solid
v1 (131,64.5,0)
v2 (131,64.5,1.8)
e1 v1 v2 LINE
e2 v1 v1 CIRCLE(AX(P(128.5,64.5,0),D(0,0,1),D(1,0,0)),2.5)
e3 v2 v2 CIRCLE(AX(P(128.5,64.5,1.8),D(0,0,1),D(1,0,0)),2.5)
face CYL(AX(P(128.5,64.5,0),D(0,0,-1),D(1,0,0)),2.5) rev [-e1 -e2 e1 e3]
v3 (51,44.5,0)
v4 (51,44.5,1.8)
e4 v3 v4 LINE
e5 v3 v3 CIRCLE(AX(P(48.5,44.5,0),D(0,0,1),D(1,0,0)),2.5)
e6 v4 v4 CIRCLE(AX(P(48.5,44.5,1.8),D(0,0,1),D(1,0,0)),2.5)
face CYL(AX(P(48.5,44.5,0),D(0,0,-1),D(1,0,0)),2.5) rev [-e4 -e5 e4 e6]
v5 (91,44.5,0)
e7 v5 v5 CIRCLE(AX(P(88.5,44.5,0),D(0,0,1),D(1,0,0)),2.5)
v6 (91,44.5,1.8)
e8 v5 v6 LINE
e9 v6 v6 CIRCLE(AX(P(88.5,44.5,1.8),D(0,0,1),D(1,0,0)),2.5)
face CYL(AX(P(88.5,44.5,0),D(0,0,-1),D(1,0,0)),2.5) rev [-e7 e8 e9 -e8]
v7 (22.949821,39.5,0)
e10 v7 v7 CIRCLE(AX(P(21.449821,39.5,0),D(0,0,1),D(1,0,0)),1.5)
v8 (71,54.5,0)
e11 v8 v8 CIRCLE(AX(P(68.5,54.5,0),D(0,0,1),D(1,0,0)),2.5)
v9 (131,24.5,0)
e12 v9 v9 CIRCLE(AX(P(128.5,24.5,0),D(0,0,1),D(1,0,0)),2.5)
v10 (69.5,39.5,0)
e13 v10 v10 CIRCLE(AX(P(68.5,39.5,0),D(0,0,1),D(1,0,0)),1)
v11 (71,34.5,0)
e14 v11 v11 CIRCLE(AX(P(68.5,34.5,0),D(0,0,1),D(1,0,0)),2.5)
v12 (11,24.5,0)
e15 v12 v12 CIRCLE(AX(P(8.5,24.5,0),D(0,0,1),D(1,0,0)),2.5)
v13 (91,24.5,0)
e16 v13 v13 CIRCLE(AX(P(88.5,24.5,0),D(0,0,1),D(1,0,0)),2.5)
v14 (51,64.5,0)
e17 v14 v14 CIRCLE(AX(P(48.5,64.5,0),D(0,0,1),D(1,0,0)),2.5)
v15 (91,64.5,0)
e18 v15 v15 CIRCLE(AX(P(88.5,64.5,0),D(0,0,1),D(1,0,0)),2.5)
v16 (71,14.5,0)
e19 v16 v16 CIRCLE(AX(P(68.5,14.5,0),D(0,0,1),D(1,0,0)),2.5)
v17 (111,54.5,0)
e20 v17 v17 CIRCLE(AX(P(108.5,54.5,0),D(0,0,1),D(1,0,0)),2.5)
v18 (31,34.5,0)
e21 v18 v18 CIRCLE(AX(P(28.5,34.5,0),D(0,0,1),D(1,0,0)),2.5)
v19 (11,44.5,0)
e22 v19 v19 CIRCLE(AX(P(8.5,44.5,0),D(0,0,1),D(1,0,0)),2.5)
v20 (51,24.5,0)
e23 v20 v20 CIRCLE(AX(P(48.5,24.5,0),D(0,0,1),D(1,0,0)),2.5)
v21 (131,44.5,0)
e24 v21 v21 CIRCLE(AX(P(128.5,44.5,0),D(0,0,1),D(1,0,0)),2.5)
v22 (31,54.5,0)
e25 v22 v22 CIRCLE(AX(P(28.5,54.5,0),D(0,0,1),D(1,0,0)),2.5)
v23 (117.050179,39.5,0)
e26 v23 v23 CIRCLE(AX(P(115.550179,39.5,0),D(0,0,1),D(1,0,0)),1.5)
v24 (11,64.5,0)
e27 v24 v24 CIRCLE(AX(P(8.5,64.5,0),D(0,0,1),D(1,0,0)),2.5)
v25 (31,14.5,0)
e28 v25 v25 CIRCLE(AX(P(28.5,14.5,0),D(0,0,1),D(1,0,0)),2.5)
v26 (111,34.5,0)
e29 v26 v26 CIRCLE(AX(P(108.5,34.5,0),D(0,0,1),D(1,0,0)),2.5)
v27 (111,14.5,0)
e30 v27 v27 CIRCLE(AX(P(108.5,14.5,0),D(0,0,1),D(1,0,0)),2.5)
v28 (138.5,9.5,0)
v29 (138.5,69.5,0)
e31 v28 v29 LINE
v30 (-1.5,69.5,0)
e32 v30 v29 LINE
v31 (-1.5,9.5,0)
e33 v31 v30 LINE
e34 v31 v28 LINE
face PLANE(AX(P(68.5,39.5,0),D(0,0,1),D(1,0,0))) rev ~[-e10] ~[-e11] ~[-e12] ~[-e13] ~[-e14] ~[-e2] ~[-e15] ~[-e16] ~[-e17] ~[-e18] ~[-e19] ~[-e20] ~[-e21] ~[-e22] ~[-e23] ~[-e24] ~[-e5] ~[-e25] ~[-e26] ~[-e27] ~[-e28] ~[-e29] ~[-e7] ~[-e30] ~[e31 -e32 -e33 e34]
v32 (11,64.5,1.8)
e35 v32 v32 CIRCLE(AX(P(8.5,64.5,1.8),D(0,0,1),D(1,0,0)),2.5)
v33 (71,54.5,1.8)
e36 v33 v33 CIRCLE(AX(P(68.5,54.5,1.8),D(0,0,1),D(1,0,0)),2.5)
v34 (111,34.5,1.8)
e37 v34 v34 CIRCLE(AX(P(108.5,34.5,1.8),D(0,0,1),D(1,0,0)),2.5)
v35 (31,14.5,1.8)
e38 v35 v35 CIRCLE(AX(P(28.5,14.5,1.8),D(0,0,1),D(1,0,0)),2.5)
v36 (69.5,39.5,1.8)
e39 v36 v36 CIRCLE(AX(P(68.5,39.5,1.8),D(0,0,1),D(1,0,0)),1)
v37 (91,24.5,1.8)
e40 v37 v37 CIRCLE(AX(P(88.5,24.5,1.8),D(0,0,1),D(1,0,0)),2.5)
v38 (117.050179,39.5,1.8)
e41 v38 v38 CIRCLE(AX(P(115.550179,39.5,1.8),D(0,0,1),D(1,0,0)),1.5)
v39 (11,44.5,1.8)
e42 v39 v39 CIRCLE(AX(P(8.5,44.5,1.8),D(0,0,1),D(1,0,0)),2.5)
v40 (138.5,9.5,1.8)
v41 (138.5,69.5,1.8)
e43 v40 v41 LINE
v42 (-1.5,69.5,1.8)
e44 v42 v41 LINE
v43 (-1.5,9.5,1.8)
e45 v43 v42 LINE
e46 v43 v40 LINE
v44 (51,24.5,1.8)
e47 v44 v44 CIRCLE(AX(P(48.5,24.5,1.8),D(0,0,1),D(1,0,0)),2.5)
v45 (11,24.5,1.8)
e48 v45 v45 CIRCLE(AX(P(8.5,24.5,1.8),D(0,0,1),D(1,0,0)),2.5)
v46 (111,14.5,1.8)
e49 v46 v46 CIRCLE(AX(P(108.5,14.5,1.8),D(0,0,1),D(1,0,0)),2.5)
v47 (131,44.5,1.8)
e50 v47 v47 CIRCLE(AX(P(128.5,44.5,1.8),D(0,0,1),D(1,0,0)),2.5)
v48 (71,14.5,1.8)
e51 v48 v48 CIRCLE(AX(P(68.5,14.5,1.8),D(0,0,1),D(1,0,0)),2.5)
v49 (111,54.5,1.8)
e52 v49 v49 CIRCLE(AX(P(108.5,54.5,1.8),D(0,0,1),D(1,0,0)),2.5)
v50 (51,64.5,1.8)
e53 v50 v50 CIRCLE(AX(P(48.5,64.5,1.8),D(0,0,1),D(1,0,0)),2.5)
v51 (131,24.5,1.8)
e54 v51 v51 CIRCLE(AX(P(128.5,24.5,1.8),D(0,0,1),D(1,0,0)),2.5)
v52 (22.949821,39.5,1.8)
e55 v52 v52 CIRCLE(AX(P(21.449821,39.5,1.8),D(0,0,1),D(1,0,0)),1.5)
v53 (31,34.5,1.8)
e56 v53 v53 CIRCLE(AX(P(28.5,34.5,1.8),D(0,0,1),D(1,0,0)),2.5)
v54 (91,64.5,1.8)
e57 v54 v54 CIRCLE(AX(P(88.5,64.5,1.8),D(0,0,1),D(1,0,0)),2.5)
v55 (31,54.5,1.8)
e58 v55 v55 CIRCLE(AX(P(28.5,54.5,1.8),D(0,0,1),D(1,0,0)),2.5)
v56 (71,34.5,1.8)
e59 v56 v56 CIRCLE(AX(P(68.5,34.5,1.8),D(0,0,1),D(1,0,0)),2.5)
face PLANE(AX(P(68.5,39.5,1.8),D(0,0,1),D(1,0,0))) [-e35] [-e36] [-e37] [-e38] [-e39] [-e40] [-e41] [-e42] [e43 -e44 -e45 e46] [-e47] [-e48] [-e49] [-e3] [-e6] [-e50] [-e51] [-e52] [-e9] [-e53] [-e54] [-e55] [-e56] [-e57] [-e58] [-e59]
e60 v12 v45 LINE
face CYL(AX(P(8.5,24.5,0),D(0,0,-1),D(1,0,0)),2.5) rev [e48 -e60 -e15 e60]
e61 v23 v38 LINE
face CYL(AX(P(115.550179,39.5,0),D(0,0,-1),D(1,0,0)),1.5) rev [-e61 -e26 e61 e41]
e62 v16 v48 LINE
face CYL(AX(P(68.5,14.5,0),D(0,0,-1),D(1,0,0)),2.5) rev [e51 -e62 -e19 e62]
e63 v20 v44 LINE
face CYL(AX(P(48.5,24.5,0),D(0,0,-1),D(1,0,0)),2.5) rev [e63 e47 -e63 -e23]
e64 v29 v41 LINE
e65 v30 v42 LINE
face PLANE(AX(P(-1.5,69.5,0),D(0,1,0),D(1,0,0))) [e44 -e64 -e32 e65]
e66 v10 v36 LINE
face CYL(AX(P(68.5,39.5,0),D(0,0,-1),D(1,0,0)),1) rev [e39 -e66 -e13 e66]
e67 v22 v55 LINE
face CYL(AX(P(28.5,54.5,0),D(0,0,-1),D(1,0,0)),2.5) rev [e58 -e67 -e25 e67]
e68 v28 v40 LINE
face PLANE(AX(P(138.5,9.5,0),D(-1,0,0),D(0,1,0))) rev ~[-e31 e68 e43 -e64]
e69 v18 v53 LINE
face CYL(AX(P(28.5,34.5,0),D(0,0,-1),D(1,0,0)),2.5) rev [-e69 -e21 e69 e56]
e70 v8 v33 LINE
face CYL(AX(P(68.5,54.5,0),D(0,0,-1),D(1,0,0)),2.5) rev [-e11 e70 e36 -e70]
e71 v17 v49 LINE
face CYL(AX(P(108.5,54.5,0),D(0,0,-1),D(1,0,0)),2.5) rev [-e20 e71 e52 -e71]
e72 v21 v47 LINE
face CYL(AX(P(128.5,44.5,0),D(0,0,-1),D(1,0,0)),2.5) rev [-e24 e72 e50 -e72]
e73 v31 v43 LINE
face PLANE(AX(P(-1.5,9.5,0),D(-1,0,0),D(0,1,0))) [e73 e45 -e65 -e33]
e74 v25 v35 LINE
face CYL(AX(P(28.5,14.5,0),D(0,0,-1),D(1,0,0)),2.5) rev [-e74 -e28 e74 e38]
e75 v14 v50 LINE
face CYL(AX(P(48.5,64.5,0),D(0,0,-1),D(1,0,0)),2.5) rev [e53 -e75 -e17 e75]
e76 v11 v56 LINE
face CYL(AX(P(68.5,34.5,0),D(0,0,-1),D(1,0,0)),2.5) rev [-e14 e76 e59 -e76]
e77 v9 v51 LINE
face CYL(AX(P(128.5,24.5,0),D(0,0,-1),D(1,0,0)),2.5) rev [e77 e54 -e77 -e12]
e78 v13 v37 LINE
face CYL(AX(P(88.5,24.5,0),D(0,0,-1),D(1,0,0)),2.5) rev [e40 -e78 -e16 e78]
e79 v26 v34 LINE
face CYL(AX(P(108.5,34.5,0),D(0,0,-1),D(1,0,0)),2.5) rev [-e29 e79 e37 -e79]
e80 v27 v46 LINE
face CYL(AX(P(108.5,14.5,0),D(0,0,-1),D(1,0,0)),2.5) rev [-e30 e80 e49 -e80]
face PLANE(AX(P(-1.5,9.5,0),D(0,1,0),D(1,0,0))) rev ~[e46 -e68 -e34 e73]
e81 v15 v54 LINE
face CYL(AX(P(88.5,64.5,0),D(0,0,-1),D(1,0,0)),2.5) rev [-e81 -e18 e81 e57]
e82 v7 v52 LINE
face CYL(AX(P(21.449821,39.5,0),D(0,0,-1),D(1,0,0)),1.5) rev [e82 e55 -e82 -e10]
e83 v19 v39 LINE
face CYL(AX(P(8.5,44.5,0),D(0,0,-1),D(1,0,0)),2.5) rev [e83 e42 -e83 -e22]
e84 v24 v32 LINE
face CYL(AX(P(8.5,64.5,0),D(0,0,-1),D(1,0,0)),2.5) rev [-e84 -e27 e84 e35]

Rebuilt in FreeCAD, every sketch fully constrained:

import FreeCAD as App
import Part
import Sketcher
from FreeCAD import Vector


def add_polygon(sketch, points):
    """Adds a closed chain of lines whose ends are joined by coincident constraints."""
    first, n = sketch.GeometryCount, len(points)
    for a, b in zip(points, points[1:] + points[:1]):
        sketch.addGeometry(Part.LineSegment(App.Vector(*a, 0), App.Vector(*b, 0)), False)
    for i in range(n):
        sketch.addConstraint(Sketcher.Constraint("Coincident", first + i, 2, first + (i + 1) % n, 1))

doc = App.newDocument("Part")
body = doc.addObject("PartDesign::Body", "Body")

# Sketch on XY plane
sketch1 = body.newObject("Sketcher::SketchObject", "Sketch")
sketch1.AttachmentSupport = (doc.getObject("XY_Plane"), [""])
sketch1.MapMode = "FlatFace"
add_polygon(sketch1, [(-1.5, 69.5), (-1.5, 9.5), (138.5, 9.5), (138.5, 69.5)])  # lines 0-3
sketch1.addGeometry(Part.Circle(Vector(28.5, 14.5, 0), Vector(0, 0, 1), 2.5), False)  # 4
sketch1.addGeometry(Part.Circle(Vector(8.5, 24.5, 0), Vector(0, 0, 1), 2.5), False)  # 5
sketch1.addGeometry(Part.Circle(Vector(48.5, 24.5, 0), Vector(0, 0, 1), 2.5), False)  # 6
sketch1.addGeometry(Part.Circle(Vector(28.5, 34.5, 0), Vector(0, 0, 1), 2.5), False)  # 7
sketch1.addGeometry(Part.Circle(Vector(68.5, 14.5, 0), Vector(0, 0, 1), 2.5), False)  # 8
sketch1.addGeometry(Part.Circle(Vector(88.5, 24.5, 0), Vector(0, 0, 1), 2.5), False)  # 9
sketch1.addGeometry(Part.Circle(Vector(108.5, 14.5, 0), Vector(0, 0, 1), 2.5), False)  # 10
sketch1.addGeometry(Part.Circle(Vector(128.5, 24.5, 0), Vector(0, 0, 1), 2.5), False)  # 11
sketch1.addGeometry(Part.Circle(Vector(68.5, 34.5, 0), Vector(0, 0, 1), 2.5), False)  # 12
sketch1.addGeometry(Part.Circle(Vector(108.5, 34.5, 0), Vector(0, 0, 1), 2.5), False)  # 13
sketch1.addGeometry(Part.Circle(Vector(21.449821, 39.5, 0), Vector(0, 0, 1), 1.5), False)  # 14
sketch1.addGeometry(Part.Circle(Vector(8.5, 44.5, 0), Vector(0, 0, 1), 2.5), False)  # 15
sketch1.addGeometry(Part.Circle(Vector(48.5, 44.5, 0), Vector(0, 0, 1), 2.5), False)  # 16
sketch1.addGeometry(Part.Circle(Vector(28.5, 54.5, 0), Vector(0, 0, 1), 2.5), False)  # 17
sketch1.addGeometry(Part.Circle(Vector(8.5, 64.5, 0), Vector(0, 0, 1), 2.5), False)  # 18
sketch1.addGeometry(Part.Circle(Vector(48.5, 64.5, 0), Vector(0, 0, 1), 2.5), False)  # 19
sketch1.addGeometry(Part.Circle(Vector(68.5, 39.5, 0), Vector(0, 0, 1), 1), False)  # 20
sketch1.addGeometry(Part.Circle(Vector(88.5, 44.5, 0), Vector(0, 0, 1), 2.5), False)  # 21
sketch1.addGeometry(Part.Circle(Vector(115.550179, 39.5, 0), Vector(0, 0, 1), 1.5), False)  # 22
sketch1.addGeometry(Part.Circle(Vector(128.5, 44.5, 0), Vector(0, 0, 1), 2.5), False)  # 23
sketch1.addGeometry(Part.Circle(Vector(68.5, 54.5, 0), Vector(0, 0, 1), 2.5), False)  # 24
sketch1.addGeometry(Part.Circle(Vector(88.5, 64.5, 0), Vector(0, 0, 1), 2.5), False)  # 25
sketch1.addGeometry(Part.Circle(Vector(108.5, 54.5, 0), Vector(0, 0, 1), 2.5), False)  # 26
sketch1.addGeometry(Part.Circle(Vector(128.5, 64.5, 0), Vector(0, 0, 1), 2.5), False)  # 27
sketch1.addConstraint(Sketcher.Constraint("Vertical", 0))
sketch1.addConstraint(Sketcher.Constraint("Horizontal", 1))
sketch1.addConstraint(Sketcher.Constraint("Vertical", 2))
sketch1.addConstraint(Sketcher.Constraint("Horizontal", 3))
sketch1.addConstraint(Sketcher.Constraint("Equal", 4, 5))
sketch1.addConstraint(Sketcher.Constraint("Equal", 5, 6))
sketch1.addConstraint(Sketcher.Constraint("Equal", 6, 7))
sketch1.addConstraint(Sketcher.Constraint("Equal", 7, 8))
sketch1.addConstraint(Sketcher.Constraint("Equal", 8, 9))
sketch1.addConstraint(Sketcher.Constraint("Equal", 9, 10))
sketch1.addConstraint(Sketcher.Constraint("Equal", 10, 11))
sketch1.addConstraint(Sketcher.Constraint("Equal", 11, 12))
sketch1.addConstraint(Sketcher.Constraint("Equal", 12, 13))
sketch1.addConstraint(Sketcher.Constraint("Equal", 13, 15))
sketch1.addConstraint(Sketcher.Constraint("Equal", 15, 16))
sketch1.addConstraint(Sketcher.Constraint("Equal", 16, 17))
sketch1.addConstraint(Sketcher.Constraint("Equal", 17, 18))
sketch1.addConstraint(Sketcher.Constraint("Equal", 18, 19))
sketch1.addConstraint(Sketcher.Constraint("Equal", 19, 21))
sketch1.addConstraint(Sketcher.Constraint("Equal", 14, 22))
sketch1.addConstraint(Sketcher.Constraint("Equal", 21, 23))
sketch1.addConstraint(Sketcher.Constraint("Equal", 23, 24))
sketch1.addConstraint(Sketcher.Constraint("Equal", 24, 25))
sketch1.addConstraint(Sketcher.Constraint("Equal", 25, 26))
sketch1.addConstraint(Sketcher.Constraint("Equal", 26, 27))
sketch1.addConstraint(Sketcher.Constraint("Horizontal", 5, 3, 6, 3))
sketch1.addConstraint(Sketcher.Constraint("Horizontal", 4, 3, 8, 3))
sketch1.addConstraint(Sketcher.Constraint("Horizontal", 6, 3, 9, 3))
sketch1.addConstraint(Sketcher.Constraint("Horizontal", 8, 3, 10, 3))
sketch1.addConstraint(Sketcher.Constraint("Horizontal", 9, 3, 11, 3))
sketch1.addConstraint(Sketcher.Constraint("Horizontal", 7, 3, 12, 3))
sketch1.addConstraint(Sketcher.Constraint("Horizontal", 12, 3, 13, 3))
sketch1.addConstraint(Sketcher.Constraint("Horizontal", 15, 3, 16, 3))
sketch1.addConstraint(Sketcher.Constraint("Horizontal", 18, 3, 19, 3))
sketch1.addConstraint(Sketcher.Constraint("Horizontal", 14, 3, 20, 3))
sketch1.addConstraint(Sketcher.Constraint("Horizontal", 16, 3, 21, 3))
sketch1.addConstraint(Sketcher.Constraint("Horizontal", 20, 3, 22, 3))
sketch1.addConstraint(Sketcher.Constraint("Horizontal", 21, 3, 23, 3))
sketch1.addConstraint(Sketcher.Constraint("Horizontal", 17, 3, 24, 3))
sketch1.addConstraint(Sketcher.Constraint("Horizontal", 19, 3, 25, 3))
sketch1.addConstraint(Sketcher.Constraint("Horizontal", 24, 3, 26, 3))
sketch1.addConstraint(Sketcher.Constraint("Horizontal", 25, 3, 27, 3))
sketch1.addConstraint(Sketcher.Constraint("Vertical", 4, 3, 7, 3))
sketch1.addConstraint(Sketcher.Constraint("Vertical", 8, 3, 12, 3))
sketch1.addConstraint(Sketcher.Constraint("Vertical", 10, 3, 13, 3))
sketch1.addConstraint(Sketcher.Constraint("Vertical", 5, 3, 15, 3))
sketch1.addConstraint(Sketcher.Constraint("Vertical", 6, 3, 16, 3))
sketch1.addConstraint(Sketcher.Constraint("Vertical", 7, 3, 17, 3))
sketch1.addConstraint(Sketcher.Constraint("Vertical", 15, 3, 18, 3))
sketch1.addConstraint(Sketcher.Constraint("Vertical", 16, 3, 19, 3))
sketch1.addConstraint(Sketcher.Constraint("Vertical", 12, 3, 20, 3))
sketch1.addConstraint(Sketcher.Constraint("Vertical", 9, 3, 21, 3))
sketch1.addConstraint(Sketcher.Constraint("Vertical", 11, 3, 23, 3))
sketch1.addConstraint(Sketcher.Constraint("Vertical", 20, 3, 24, 3))
sketch1.addConstraint(Sketcher.Constraint("Vertical", 21, 3, 25, 3))
sketch1.addConstraint(Sketcher.Constraint("Vertical", 13, 3, 26, 3))
sketch1.addConstraint(Sketcher.Constraint("Vertical", 23, 3, 27, 3))
sketch1.addConstraint(Sketcher.Constraint("Diameter", 4, 5.0))
sketch1.addConstraint(Sketcher.Constraint("Diameter", 14, 3.0))
sketch1.addConstraint(Sketcher.Constraint("Diameter", 20, 2.0))
sketch1.addConstraint(Sketcher.Constraint("DistanceX", 1, 1, 1, 2, 140.0))
sketch1.addConstraint(Sketcher.Constraint("DistanceY", 0, 2, 0, 1, 60.0))
sketch1.addConstraint(Sketcher.Constraint("DistanceX", 5, 3, 4, 3, 20.0))
sketch1.addConstraint(Sketcher.Constraint("DistanceY", 4, 3, 5, 3, 10.0))
sketch1.addConstraint(Sketcher.Constraint("DistanceX", 4, 3, 6, 3, 20.0))
sketch1.addConstraint(Sketcher.Constraint("DistanceY", 4, 3, 7, 3, 20.0))
sketch1.addConstraint(Sketcher.Constraint("DistanceX", 6, 3, 8, 3, 20.0))
sketch1.addConstraint(Sketcher.Constraint("DistanceX", 8, 3, 9, 3, 20.0))
sketch1.addConstraint(Sketcher.Constraint("DistanceX", 9, 3, 10, 3, 20.0))
sketch1.addConstraint(Sketcher.Constraint("DistanceX", 10, 3, 11, 3, 20.0))
sketch1.addConstraint(Sketcher.Constraint("DistanceY", 7, 3, 14, 3, 5.0))
sketch1.addConstraint(Sketcher.Constraint("DistanceY", 14, 3, 15, 3, 5.0))
sketch1.addConstraint(Sketcher.Constraint("DistanceY", 14, 3, 17, 3, 15.0))
sketch1.addConstraint(Sketcher.Constraint("DistanceY", 15, 3, 18, 3, 20.0))
sketch1.addConstraint(Sketcher.Constraint("DistanceX", 0, 2, 5, 3, 10.0))
sketch1.addConstraint(Sketcher.Constraint("DistanceY", 0, 2, 5, 3, 15.0))
sketch1.addConstraint(Sketcher.Constraint("DistanceX", -1, 1, 4, 3, 28.5))
sketch1.addConstraint(Sketcher.Constraint("DistanceY", -1, 1, 4, 3, 14.5))
sketch1.addConstraint(Sketcher.Constraint("DistanceX", -1, 1, 14, 3, 21.449821))
sketch1.addConstraint(Sketcher.Constraint("DistanceX", -1, 1, 22, 3, 115.550179))
pad1 = body.newObject("PartDesign::Pad", "Pad")
pad1.Profile = sketch1
pad1.Length = 1.8

doc.recompute()
